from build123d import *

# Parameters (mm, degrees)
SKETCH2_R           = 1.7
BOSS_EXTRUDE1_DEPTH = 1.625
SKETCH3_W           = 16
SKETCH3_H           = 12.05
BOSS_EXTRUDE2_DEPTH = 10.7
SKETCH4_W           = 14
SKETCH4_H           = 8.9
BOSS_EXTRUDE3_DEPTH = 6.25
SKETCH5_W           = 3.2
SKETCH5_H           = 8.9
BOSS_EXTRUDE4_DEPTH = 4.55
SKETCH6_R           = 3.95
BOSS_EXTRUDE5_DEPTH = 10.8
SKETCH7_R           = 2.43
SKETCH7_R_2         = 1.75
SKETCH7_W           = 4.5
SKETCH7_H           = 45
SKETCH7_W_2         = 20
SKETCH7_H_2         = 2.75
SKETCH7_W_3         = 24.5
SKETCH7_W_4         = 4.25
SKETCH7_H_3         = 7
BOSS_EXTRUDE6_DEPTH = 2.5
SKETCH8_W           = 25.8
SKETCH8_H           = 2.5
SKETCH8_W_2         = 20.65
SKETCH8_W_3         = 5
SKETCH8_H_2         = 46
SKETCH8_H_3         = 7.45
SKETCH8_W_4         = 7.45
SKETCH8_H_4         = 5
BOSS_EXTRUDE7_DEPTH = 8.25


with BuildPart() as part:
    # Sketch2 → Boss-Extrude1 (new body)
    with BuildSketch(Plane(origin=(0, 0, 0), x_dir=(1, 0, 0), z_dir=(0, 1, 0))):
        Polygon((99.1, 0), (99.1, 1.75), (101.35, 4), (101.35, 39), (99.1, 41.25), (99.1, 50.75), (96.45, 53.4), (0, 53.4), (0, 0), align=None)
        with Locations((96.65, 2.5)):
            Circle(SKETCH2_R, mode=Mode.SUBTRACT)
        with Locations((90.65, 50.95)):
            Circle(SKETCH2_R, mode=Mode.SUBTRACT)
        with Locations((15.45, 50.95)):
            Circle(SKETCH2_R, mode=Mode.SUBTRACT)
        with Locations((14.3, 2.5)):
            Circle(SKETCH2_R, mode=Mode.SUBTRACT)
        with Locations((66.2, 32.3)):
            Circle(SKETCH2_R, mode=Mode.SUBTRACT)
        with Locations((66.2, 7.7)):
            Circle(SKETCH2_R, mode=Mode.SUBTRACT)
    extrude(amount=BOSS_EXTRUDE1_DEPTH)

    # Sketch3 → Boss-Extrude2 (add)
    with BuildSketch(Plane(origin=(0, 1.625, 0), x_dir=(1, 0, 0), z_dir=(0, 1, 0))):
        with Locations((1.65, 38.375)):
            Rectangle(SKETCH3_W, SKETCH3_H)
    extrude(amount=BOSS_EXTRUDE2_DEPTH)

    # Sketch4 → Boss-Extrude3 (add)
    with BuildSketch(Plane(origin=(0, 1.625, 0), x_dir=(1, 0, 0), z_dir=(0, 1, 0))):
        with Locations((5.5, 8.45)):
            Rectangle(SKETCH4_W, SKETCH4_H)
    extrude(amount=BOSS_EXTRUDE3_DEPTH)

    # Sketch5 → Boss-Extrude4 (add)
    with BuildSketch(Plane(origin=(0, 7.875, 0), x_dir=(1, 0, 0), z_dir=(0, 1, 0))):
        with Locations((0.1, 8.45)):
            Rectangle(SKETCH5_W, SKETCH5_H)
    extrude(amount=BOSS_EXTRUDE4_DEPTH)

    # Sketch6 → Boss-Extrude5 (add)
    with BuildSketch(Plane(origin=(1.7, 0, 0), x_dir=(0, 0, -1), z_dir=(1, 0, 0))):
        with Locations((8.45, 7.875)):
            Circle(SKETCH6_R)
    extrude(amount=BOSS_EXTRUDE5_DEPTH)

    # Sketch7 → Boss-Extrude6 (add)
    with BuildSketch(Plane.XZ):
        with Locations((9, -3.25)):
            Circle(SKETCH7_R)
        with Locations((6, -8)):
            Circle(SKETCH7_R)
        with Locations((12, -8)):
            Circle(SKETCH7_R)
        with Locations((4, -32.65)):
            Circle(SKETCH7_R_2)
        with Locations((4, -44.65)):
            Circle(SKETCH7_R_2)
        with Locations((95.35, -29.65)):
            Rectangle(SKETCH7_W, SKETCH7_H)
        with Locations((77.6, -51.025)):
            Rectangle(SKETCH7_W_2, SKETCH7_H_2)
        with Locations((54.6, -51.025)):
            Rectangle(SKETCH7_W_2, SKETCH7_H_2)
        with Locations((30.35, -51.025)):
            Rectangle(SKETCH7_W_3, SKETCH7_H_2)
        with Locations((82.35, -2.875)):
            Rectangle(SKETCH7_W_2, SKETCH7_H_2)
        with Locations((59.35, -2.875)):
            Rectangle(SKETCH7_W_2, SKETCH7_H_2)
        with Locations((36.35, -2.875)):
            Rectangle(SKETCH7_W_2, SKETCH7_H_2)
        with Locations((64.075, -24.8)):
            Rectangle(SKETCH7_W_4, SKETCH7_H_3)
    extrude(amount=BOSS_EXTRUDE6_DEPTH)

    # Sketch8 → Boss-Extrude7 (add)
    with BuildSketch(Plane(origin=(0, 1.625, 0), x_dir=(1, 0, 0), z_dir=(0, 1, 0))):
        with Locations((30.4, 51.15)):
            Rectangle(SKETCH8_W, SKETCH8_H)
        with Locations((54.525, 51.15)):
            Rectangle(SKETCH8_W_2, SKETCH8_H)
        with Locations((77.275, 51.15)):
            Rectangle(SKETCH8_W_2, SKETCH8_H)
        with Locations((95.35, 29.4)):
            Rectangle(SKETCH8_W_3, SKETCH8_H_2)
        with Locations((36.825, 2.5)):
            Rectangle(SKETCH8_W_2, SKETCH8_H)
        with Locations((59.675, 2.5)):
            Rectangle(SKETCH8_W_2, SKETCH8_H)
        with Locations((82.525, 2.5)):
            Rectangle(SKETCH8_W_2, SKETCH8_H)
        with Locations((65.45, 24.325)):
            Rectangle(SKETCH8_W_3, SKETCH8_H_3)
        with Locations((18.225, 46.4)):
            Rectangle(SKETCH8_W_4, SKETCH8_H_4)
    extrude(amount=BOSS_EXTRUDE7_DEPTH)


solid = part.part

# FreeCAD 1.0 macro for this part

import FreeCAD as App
import Part
import Sketcher

doc = App.newDocument("Part")
body = doc.addObject("PartDesign::Body", "Body")

# Sketch on XZ plane
sketch1 = body.newObject("Sketcher::SketchObject", "Sketch")
sketch1.AttachmentSupport = (doc.getObject("XZ_Plane"), [""])
sketch1.MapMode = "FlatFace"
sketch1.addGeometry([
    Part.LineSegment(App.Vector(99.1, 0, 0), App.Vector(99.1, -1.75, 0)),  # 0
    Part.LineSegment(App.Vector(99.1, -1.75, 0), App.Vector(101.35, -4, 0)),  # 1
    Part.LineSegment(App.Vector(101.35, -4, 0), App.Vector(101.35, -39, 0)),  # 2
    Part.LineSegment(App.Vector(101.35, -39, 0), App.Vector(99.1, -41.25, 0)),  # 3
    Part.LineSegment(App.Vector(99.1, -41.25, 0), App.Vector(99.1, -50.75, 0)),  # 4
    Part.LineSegment(App.Vector(99.1, -50.75, 0), App.Vector(96.45, -53.4, 0)),  # 5
    Part.LineSegment(App.Vector(96.45, -53.4, 0), App.Vector(0, -53.4, 0)),  # 6
    Part.LineSegment(App.Vector(0, -53.4, 0), App.Vector(0, 0, 0)),  # 7
    Part.LineSegment(App.Vector(0, 0, 0), App.Vector(99.1, 0, 0)),  # 8
    Part.Circle(App.Vector(14.3, -2.5, 0), App.Vector(0, 0, 1), 1.7),  # 9
    Part.Circle(App.Vector(66.2, -7.7, 0), App.Vector(0, 0, 1), 1.7),  # 10
    Part.Circle(App.Vector(96.65, -2.5, 0), App.Vector(0, 0, 1), 1.7),  # 11
    Part.Circle(App.Vector(15.45, -50.95, 0), App.Vector(0, 0, 1), 1.7),  # 12
    Part.Circle(App.Vector(66.2, -32.3, 0), App.Vector(0, 0, 1), 1.7),  # 13
    Part.Circle(App.Vector(90.65, -50.95, 0), App.Vector(0, 0, 1), 1.7),  # 14
], False)
sketch1.addConstraint([
    Sketcher.Constraint("Coincident", 0, 2, 1, 1),
    Sketcher.Constraint("Coincident", 1, 2, 2, 1),
    Sketcher.Constraint("Coincident", 2, 2, 3, 1),
    Sketcher.Constraint("Coincident", 3, 2, 4, 1),
    Sketcher.Constraint("Coincident", 4, 2, 5, 1),
    Sketcher.Constraint("Coincident", 5, 2, 6, 1),
    Sketcher.Constraint("Coincident", 6, 2, 7, 1),
    Sketcher.Constraint("Coincident", 7, 2, 8, 1),
    Sketcher.Constraint("Coincident", 8, 2, 0, 1),
    Sketcher.Constraint("Vertical", 0),
    Sketcher.Constraint("Vertical", 2),
    Sketcher.Constraint("Vertical", 4),
    Sketcher.Constraint("Horizontal", 6),
    Sketcher.Constraint("Vertical", 7),
    Sketcher.Constraint("Horizontal", 8),
    Sketcher.Constraint("Coincident", 7, 2, -1, 1),
    Sketcher.Constraint("Equal", 9, 10),
    Sketcher.Constraint("Equal", 10, 11),
    Sketcher.Constraint("Equal", 11, 12),
    Sketcher.Constraint("Equal", 12, 13),
    Sketcher.Constraint("Equal", 13, 14),
    Sketcher.Constraint("Perpendicular", 1, 3),
    Sketcher.Constraint("Parallel", 3, 5),
    Sketcher.Constraint("Horizontal", 9, 3, 11, 3),
    Sketcher.Constraint("Horizontal", 12, 3, 14, 3),
    Sketcher.Constraint("Vertical", 10, 3, 13, 3),
    Sketcher.Constraint("Vertical", 0, 2, 3, 2),
    Sketcher.Constraint("Equal", 1, 3),
    Sketcher.Constraint("Diameter", 9, 3.4),
    Sketcher.Constraint("DistanceY", 2, 2, 2, 1, 35.0),
    Sketcher.Constraint("DistanceX", 8, 1, 8, 2, 99.1),
    Sketcher.Constraint("DistanceY", 4, 2, 4, 1, 9.5),
    Sketcher.Constraint("DistanceY", 7, 1, 7, 2, 53.4),
    Sketcher.Constraint("DistanceY", 1, 2, -1, 1, 4.0),
    Sketcher.Constraint("DistanceX", 14, 3, 11, 3, 6.0),
    Sketcher.Constraint("DistanceX", 6, 2, 6, 1, 96.45),
    Sketcher.Constraint("DistanceX", -1, 1, 9, 3, 14.3),
    Sketcher.Constraint("DistanceY", 9, 3, -1, 1, 2.5),
    Sketcher.Constraint("DistanceX", -1, 1, 10, 3, 66.2),
    Sketcher.Constraint("DistanceY", 10, 3, -1, 1, 7.7),
    Sketcher.Constraint("DistanceY", 13, 3, -1, 1, 32.3),
    Sketcher.Constraint("DistanceX", 12, 3, 11, 3, 81.2),
    Sketcher.Constraint("DistanceY", 14, 3, 0, 2, 49.2),
    Sketcher.Constraint("DistanceX", 11, 3, 1, 2, 4.7),
])
pad1 = body.newObject("PartDesign::Pad", "Pad")
pad1.Profile = sketch1
pad1.Length = 1.625
pad1.Reversed = True

# Sketch on XZ plane
sketch2 = body.newObject("Sketcher::SketchObject", "Sketch001")
sketch2.AttachmentSupport = (doc.getObject("XZ_Plane"), [""])
sketch2.MapMode = "FlatFace"
sketch2.AttachmentOffset = App.Placement(App.Vector(0, 0, -1.625), App.Rotation())
sketch2.addGeometry([
    Part.LineSegment(App.Vector(-6.35, -44.4, 0), App.Vector(-6.35, -32.35, 0)),
    Part.LineSegment(App.Vector(-6.35, -32.35, 0), App.Vector(9.65, -32.35, 0)),
    Part.LineSegment(App.Vector(9.65, -32.35, 0), App.Vector(9.65, -44.4, 0)),
    Part.LineSegment(App.Vector(9.65, -44.4, 0), App.Vector(-6.35, -44.4, 0)),
], False)
sketch2.addConstraint([
    Sketcher.Constraint("Coincident", 0, 2, 1, 1),
    Sketcher.Constraint("Coincident", 1, 2, 2, 1),
    Sketcher.Constraint("Coincident", 2, 2, 3, 1),
    Sketcher.Constraint("Coincident", 3, 2, 0, 1),
    Sketcher.Constraint("Vertical", 0),
    Sketcher.Constraint("Horizontal", 1),
    Sketcher.Constraint("Vertical", 2),
    Sketcher.Constraint("Horizontal", 3),
    Sketcher.Constraint("DistanceX", 1, 1, 1, 2, 16.0),
    Sketcher.Constraint("DistanceY", 0, 1, 0, 2, 12.05),
    Sketcher.Constraint("DistanceY", 2, 2, -1, 1, 44.4),
    Sketcher.Constraint("DistanceX", 0, 2, -1, 1, 6.35),
])
pad2 = body.newObject("PartDesign::Pad", "Pad001")
pad2.Profile = sketch2
pad2.Length = 10.7
pad2.Reversed = True

# Sketch on XZ plane
sketch3 = body.newObject("Sketcher::SketchObject", "Sketch002")
sketch3.AttachmentSupport = (doc.getObject("XZ_Plane"), [""])
sketch3.MapMode = "FlatFace"
sketch3.AttachmentOffset = App.Placement(App.Vector(0, 0, -1.625), App.Rotation())
sketch3.addGeometry([
    Part.LineSegment(App.Vector(-1.5, -12.9, 0), App.Vector(-1.5, -4, 0)),
    Part.LineSegment(App.Vector(-1.5, -4, 0), App.Vector(12.5, -4, 0)),
    Part.LineSegment(App.Vector(12.5, -4, 0), App.Vector(12.5, -12.9, 0)),
    Part.LineSegment(App.Vector(12.5, -12.9, 0), App.Vector(-1.5, -12.9, 0)),
], False)
sketch3.addConstraint([
    Sketcher.Constraint("Coincident", 0, 2, 1, 1),
    Sketcher.Constraint("Coincident", 1, 2, 2, 1),
    Sketcher.Constraint("Coincident", 2, 2, 3, 1),
    Sketcher.Constraint("Coincident", 3, 2, 0, 1),
    Sketcher.Constraint("Vertical", 0),
    Sketcher.Constraint("Horizontal", 1),
    Sketcher.Constraint("Vertical", 2),
    Sketcher.Constraint("Horizontal", 3),
    Sketcher.Constraint("DistanceX", 1, 1, 1, 2, 14.0),
    Sketcher.Constraint("DistanceY", 0, 1, 0, 2, 8.9),
    Sketcher.Constraint("DistanceY", 0, 2, -1, 1, 4.0),
    Sketcher.Constraint("DistanceX", 0, 2, -1, 1, 1.5),
])
pad3 = body.newObject("PartDesign::Pad", "Pad002")
pad3.Profile = sketch3
pad3.Length = 6.25
pad3.Reversed = True

# Sketch on XZ plane
sketch4 = body.newObject("Sketcher::SketchObject", "Sketch003")
sketch4.AttachmentSupport = (doc.getObject("XZ_Plane"), [""])
sketch4.MapMode = "FlatFace"
sketch4.AttachmentOffset = App.Placement(App.Vector(0, 0, -7.875), App.Rotation())
sketch4.addGeometry([
    Part.LineSegment(App.Vector(-1.5, -12.9, 0), App.Vector(-1.5, -4, 0)),
    Part.LineSegment(App.Vector(-1.5, -4, 0), App.Vector(1.7, -4, 0)),
    Part.LineSegment(App.Vector(1.7, -4, 0), App.Vector(1.7, -12.9, 0)),
    Part.LineSegment(App.Vector(1.7, -12.9, 0), App.Vector(-1.5, -12.9, 0)),
], False)
sketch4.addConstraint([
    Sketcher.Constraint("Coincident", 0, 2, 1, 1),
    Sketcher.Constraint("Coincident", 1, 2, 2, 1),
    Sketcher.Constraint("Coincident", 2, 2, 3, 1),
    Sketcher.Constraint("Coincident", 3, 2, 0, 1),
    Sketcher.Constraint("Vertical", 0),
    Sketcher.Constraint("Horizontal", 1),
    Sketcher.Constraint("Vertical", 2),
    Sketcher.Constraint("Horizontal", 3),
    Sketcher.Constraint("DistanceX", 1, 1, 1, 2, 3.2),
    Sketcher.Constraint("DistanceY", 0, 1, 0, 2, 8.9),
    Sketcher.Constraint("DistanceY", 0, 2, -1, 1, 4.0),
    Sketcher.Constraint("DistanceX", 0, 2, -1, 1, 1.5),
])
pad4 = body.newObject("PartDesign::Pad", "Pad003")
pad4.Profile = sketch4
pad4.Length = 4.55
pad4.Reversed = True

# Sketch on YZ plane
sketch5 = body.newObject("Sketcher::SketchObject", "Sketch004")
sketch5.AttachmentSupport = (doc.getObject("YZ_Plane"), [""])
sketch5.MapMode = "FlatFace"
sketch5.AttachmentOffset = App.Placement(App.Vector(0, 0, 1.7), App.Rotation())
sketch5.addGeometry(Part.Circle(App.Vector(7.875, -8.45, 0), App.Vector(0, 0, 1), 3.95), False)
sketch5.addConstraint([
    Sketcher.Constraint("Diameter", 0, 7.9),
    Sketcher.Constraint("DistanceY", 0, 3, -1, 1, 8.45),
    Sketcher.Constraint("DistanceX", -1, 1, 0, 3, 7.875),
])
pad5 = body.newObject("PartDesign::Pad", "Pad004")
pad5.Profile = sketch5
pad5.Length = 10.8

# Sketch on XZ plane
sketch6 = body.newObject("Sketcher::SketchObject", "Sketch005")
sketch6.AttachmentSupport = (doc.getObject("XZ_Plane"), [""])
sketch6.MapMode = "FlatFace"
sketch6.addGeometry([
    Part.Circle(App.Vector(9, -3.25, 0), App.Vector(0, 0, 1), 2.43),  # 0
    Part.Circle(App.Vector(6, -8, 0), App.Vector(0, 0, 1), 2.43),  # 1
    Part.Circle(App.Vector(12, -8, 0), App.Vector(0, 0, 1), 2.43),  # 2
    Part.Circle(App.Vector(4, -32.65, 0), App.Vector(0, 0, 1), 1.75),  # 3
    Part.Circle(App.Vector(4, -44.65, 0), App.Vector(0, 0, 1), 1.75),  # 4
    Part.LineSegment(App.Vector(93.1, -7.15, 0), App.Vector(93.1, -52.15, 0)),  # 5
    Part.LineSegment(App.Vector(93.1, -52.15, 0), App.Vector(97.6, -52.15, 0)),  # 6
    Part.LineSegment(App.Vector(97.6, -52.15, 0), App.Vector(97.6, -7.15, 0)),  # 7
    Part.LineSegment(App.Vector(97.6, -7.15, 0), App.Vector(93.1, -7.15, 0)),  # 8
    Part.LineSegment(App.Vector(67.6, -49.65, 0), App.Vector(67.6, -52.4, 0)),  # 9
    Part.LineSegment(App.Vector(67.6, -52.4, 0), App.Vector(87.6, -52.4, 0)),  # 10
    Part.LineSegment(App.Vector(87.6, -52.4, 0), App.Vector(87.6, -49.65, 0)),  # 11
    Part.LineSegment(App.Vector(87.6, -49.65, 0), App.Vector(67.6, -49.65, 0)),  # 12
    Part.LineSegment(App.Vector(44.6, -49.65, 0), App.Vector(44.6, -52.4, 0)),  # 13
    Part.LineSegment(App.Vector(44.6, -52.4, 0), App.Vector(64.6, -52.4, 0)),  # 14
    Part.LineSegment(App.Vector(64.6, -52.4, 0), App.Vector(64.6, -49.65, 0)),  # 15
    Part.LineSegment(App.Vector(64.6, -49.65, 0), App.Vector(44.6, -49.65, 0)),  # 16
    Part.LineSegment(App.Vector(18.1, -49.65, 0), App.Vector(18.1, -52.4, 0)),  # 17
    Part.LineSegment(App.Vector(18.1, -52.4, 0), App.Vector(42.6, -52.4, 0)),  # 18
    Part.LineSegment(App.Vector(42.6, -52.4, 0), App.Vector(42.6, -49.65, 0)),  # 19
    Part.LineSegment(App.Vector(42.6, -49.65, 0), App.Vector(18.1, -49.65, 0)),  # 20
    Part.LineSegment(App.Vector(72.35, -1.5, 0), App.Vector(72.35, -4.25, 0)),  # 21
    Part.LineSegment(App.Vector(72.35, -4.25, 0), App.Vector(92.35, -4.25, 0)),  # 22
    Part.LineSegment(App.Vector(92.35, -4.25, 0), App.Vector(92.35, -1.5, 0)),  # 23
    Part.LineSegment(App.Vector(92.35, -1.5, 0), App.Vector(72.35, -1.5, 0)),  # 24
    Part.LineSegment(App.Vector(49.35, -1.5, 0), App.Vector(49.35, -4.25, 0)),  # 25
    Part.LineSegment(App.Vector(49.35, -4.25, 0), App.Vector(69.35, -4.25, 0)),  # 26
    Part.LineSegment(App.Vector(69.35, -4.25, 0), App.Vector(69.35, -1.5, 0)),  # 27
    Part.LineSegment(App.Vector(69.35, -1.5, 0), App.Vector(49.35, -1.5, 0)),  # 28
    Part.LineSegment(App.Vector(26.35, -1.5, 0), App.Vector(26.35, -4.25, 0)),  # 29
    Part.LineSegment(App.Vector(26.35, -4.25, 0), App.Vector(46.35, -4.25, 0)),  # 30
    Part.LineSegment(App.Vector(46.35, -4.25, 0), App.Vector(46.35, -1.5, 0)),  # 31
    Part.LineSegment(App.Vector(46.35, -1.5, 0), App.Vector(26.35, -1.5, 0)),  # 32
    Part.LineSegment(App.Vector(61.95, -21.3, 0), App.Vector(61.95, -28.3, 0)),  # 33
    Part.LineSegment(App.Vector(61.95, -28.3, 0), App.Vector(66.2, -28.3, 0)),  # 34
    Part.LineSegment(App.Vector(66.2, -28.3, 0), App.Vector(66.2, -21.3, 0)),  # 35
    Part.LineSegment(App.Vector(66.2, -21.3, 0), App.Vector(61.95, -21.3, 0)),  # 36
], False)
sketch6.addConstraint([
    Sketcher.Constraint("Coincident", 5, 2, 6, 1),
    Sketcher.Constraint("Coincident", 6, 2, 7, 1),
    Sketcher.Constraint("Coincident", 7, 2, 8, 1),
    Sketcher.Constraint("Coincident", 8, 2, 5, 1),
    Sketcher.Constraint("Coincident", 9, 2, 10, 1),
    Sketcher.Constraint("Coincident", 10, 2, 11, 1),
    Sketcher.Constraint("Coincident", 11, 2, 12, 1),
    Sketcher.Constraint("Coincident", 12, 2, 9, 1),
    Sketcher.Constraint("Coincident", 13, 2, 14, 1),
    Sketcher.Constraint("Coincident", 14, 2, 15, 1),
    Sketcher.Constraint("Coincident", 15, 2, 16, 1),
    Sketcher.Constraint("Coincident", 16, 2, 13, 1),
    Sketcher.Constraint("Coincident", 17, 2, 18, 1),
    Sketcher.Constraint("Coincident", 18, 2, 19, 1),
    Sketcher.Constraint("Coincident", 19, 2, 20, 1),
    Sketcher.Constraint("Coincident", 20, 2, 17, 1),
    Sketcher.Constraint("Coincident", 21, 2, 22, 1),
    Sketcher.Constraint("Coincident", 22, 2, 23, 1),
    Sketcher.Constraint("Coincident", 23, 2, 24, 1),
    Sketcher.Constraint("Coincident", 24, 2, 21, 1),
    Sketcher.Constraint("Coincident", 25, 2, 26, 1),
    Sketcher.Constraint("Coincident", 26, 2, 27, 1),
    Sketcher.Constraint("Coincident", 27, 2, 28, 1),
    Sketcher.Constraint("Coincident", 28, 2, 25, 1),
    Sketcher.Constraint("Coincident", 29, 2, 30, 1),
    Sketcher.Constraint("Coincident", 30, 2, 31, 1),
    Sketcher.Constraint("Coincident", 31, 2, 32, 1),
    Sketcher.Constraint("Coincident", 32, 2, 29, 1),
    Sketcher.Constraint("Coincident", 33, 2, 34, 1),
    Sketcher.Constraint("Coincident", 34, 2, 35, 1),
    Sketcher.Constraint("Coincident", 35, 2, 36, 1),
    Sketcher.Constraint("Coincident", 36, 2, 33, 1),
    Sketcher.Constraint("Vertical", 5),
    Sketcher.Constraint("Horizontal", 6),
    Sketcher.Constraint("Vertical", 7),
    Sketcher.Constraint("Horizontal", 8),
    Sketcher.Constraint("Vertical", 9),
    Sketcher.Constraint("Horizontal", 10),
    Sketcher.Constraint("Vertical", 11),
    Sketcher.Constraint("Horizontal", 12),
    Sketcher.Constraint("Vertical", 13),
    Sketcher.Constraint("Horizontal", 14),
    Sketcher.Constraint("Vertical", 15),
    Sketcher.Constraint("Horizontal", 16),
    Sketcher.Constraint("Vertical", 17),
    Sketcher.Constraint("Horizontal", 18),
    Sketcher.Constraint("Vertical", 19),
    Sketcher.Constraint("Horizontal", 20),
    Sketcher.Constraint("Vertical", 21),
    Sketcher.Constraint("Horizontal", 22),
    Sketcher.Constraint("Vertical", 23),
    Sketcher.Constraint("Horizontal", 24),
    Sketcher.Constraint("Vertical", 25),
    Sketcher.Constraint("Horizontal", 26),
    Sketcher.Constraint("Vertical", 27),
    Sketcher.Constraint("Horizontal", 28),
    Sketcher.Constraint("Vertical", 29),
    Sketcher.Constraint("Horizontal", 30),
    Sketcher.Constraint("Vertical", 31),
    Sketcher.Constraint("Horizontal", 32),
    Sketcher.Constraint("Vertical", 33),
    Sketcher.Constraint("Horizontal", 34),
    Sketcher.Constraint("Vertical", 35),
    Sketcher.Constraint("Horizontal", 36),
    Sketcher.Constraint("Equal", 0, 1),
    Sketcher.Constraint("Equal", 1, 2),
    Sketcher.Constraint("Equal", 3, 4),
    Sketcher.Constraint("Horizontal", 1, 3, 2, 3),
    Sketcher.Constraint("Horizontal", 10, 2, 13, 2),
    Sketcher.Constraint("Horizontal", 12, 2, 15, 2),
    Sketcher.Constraint("Horizontal", 14, 2, 17, 2),
    Sketcher.Constraint("Horizontal", 16, 2, 19, 2),
    Sketcher.Constraint("Horizontal", 22, 2, 25, 2),
    Sketcher.Constraint("Horizontal", 24, 2, 27, 2),
    Sketcher.Constraint("Horizontal", 26, 2, 29, 2),
    Sketcher.Constraint("Horizontal", 28, 2, 31, 2),
    Sketcher.Constraint("Vertical", 3, 3, 4, 3),
    Sketcher.Constraint("Equal", 12, 14),
    Sketcher.Constraint("Equal", 16, 22),
    Sketcher.Constraint("Equal", 24, 26),
    Sketcher.Constraint("Equal", 28, 30),
    Sketcher.Constraint("Equal", 19, 21),
    Sketcher.Constraint("Diameter", 3, 3.5),
    Sketcher.Constraint("Diameter", 0, 4.86),
    Sketcher.Constraint("DistanceX", 10, 1, 10, 2, 20.0),
    Sketcher.Constraint("DistanceY", 5, 2, 5, 1, 45.0),
    Sketcher.Constraint("DistanceY", 33, 2, 33, 1, 7.0),
    Sketcher.Constraint("DistanceX", 6, 1, 6, 2, 4.5),
    Sketcher.Constraint("DistanceX", 18, 1, 18, 2, 24.5),
    Sketcher.Constraint("DistanceX", -1, 1, 0, 3, 9.0),
    Sketcher.Constraint("DistanceX", -1, 1, 1, 3, 6.0),
    Sketcher.Constraint("DistanceY", 1, 3, -1, 1, 8.0),
    Sketcher.Constraint("DistanceX", -1, 1, 2, 3, 12.0),
    Sketcher.Constraint("DistanceX", -1, 1, 3, 3, 4.0),
    Sketcher.Constraint("DistanceY", 4, 3, 3, 3, 12.0),
    Sketcher.Constraint("DistanceX", 9, 2, 6, 2, 30.0),
    Sketcher.Constraint("DistanceX", 13, 2, 9, 2, 23.0),
    Sketcher.Constraint("DistanceX", 18, 2, 13, 2, 2.0),
    Sketcher.Constraint("DistanceY", 20, 2, 4, 3, 5.0),
    Sketcher.Constraint("DistanceX", 25, 2, 21, 2, 23.0),
    Sketcher.Constraint("DistanceY", 25, 2, 0, 3, 1.0),
    Sketcher.Constraint("DistanceX", 29, 2, 25, 2, 23.0),
    Sketcher.Constraint("DistanceX", 34, 1, 34, 2, 4.25),
    Sketcher.Constraint("DistanceY", 9, 2, 9, 1, 2.75),
    Sketcher.Constraint("DistanceX", -1, 1, 5, 2, 93.1),
    Sketcher.Constraint("DistanceY", 9, 2, -1, 1, 52.4),
    Sketcher.Constraint("DistanceY", 23, 2, -1, 1, 1.5),
    Sketcher.Constraint("DistanceY", 33, 2, -1, 1, 28.3),
    Sketcher.Constraint("DistanceX", -1, 1, 34, 2, 66.2),
    Sketcher.Constraint("DistanceY", 5, 2, 4, 3, 7.5),
    Sketcher.Constraint("DistanceX", 33, 2, 26, 2, 7.4),
])
pad6 = body.newObject("PartDesign::Pad", "Pad005")
pad6.Profile = sketch6
pad6.Length = 2.5

# Sketch on XZ plane
sketch7 = body.newObject("Sketcher::SketchObject", "Sketch006")
sketch7.AttachmentSupport = (doc.getObject("XZ_Plane"), [""])
sketch7.MapMode = "FlatFace"
sketch7.AttachmentOffset = App.Placement(App.Vector(0, 0, -1.625), App.Rotation())
sketch7.addGeometry([
    Part.LineSegment(App.Vector(17.5, -52.4, 0), App.Vector(17.5, -49.9, 0)),  # 0
    Part.LineSegment(App.Vector(17.5, -49.9, 0), App.Vector(43.3, -49.9, 0)),  # 1
    Part.LineSegment(App.Vector(43.3, -49.9, 0), App.Vector(43.3, -52.4, 0)),  # 2
    Part.LineSegment(App.Vector(43.3, -52.4, 0), App.Vector(17.5, -52.4, 0)),  # 3
    Part.LineSegment(App.Vector(44.2, -52.4, 0), App.Vector(44.2, -49.9, 0)),  # 4
    Part.LineSegment(App.Vector(44.2, -49.9, 0), App.Vector(64.85, -49.9, 0)),  # 5
    Part.LineSegment(App.Vector(64.85, -49.9, 0), App.Vector(64.85, -52.4, 0)),  # 6
    Part.LineSegment(App.Vector(64.85, -52.4, 0), App.Vector(44.2, -52.4, 0)),  # 7
    Part.LineSegment(App.Vector(66.95, -52.4, 0), App.Vector(66.95, -49.9, 0)),  # 8
    Part.LineSegment(App.Vector(66.95, -49.9, 0), App.Vector(87.6, -49.9, 0)),  # 9
    Part.LineSegment(App.Vector(87.6, -49.9, 0), App.Vector(87.6, -52.4, 0)),  # 10
    Part.LineSegment(App.Vector(87.6, -52.4, 0), App.Vector(66.95, -52.4, 0)),  # 11
    Part.LineSegment(App.Vector(92.85, -52.4, 0), App.Vector(92.85, -6.4, 0)),  # 12
    Part.LineSegment(App.Vector(92.85, -6.4, 0), App.Vector(97.85, -6.4, 0)),  # 13
    Part.LineSegment(App.Vector(97.85, -6.4, 0), App.Vector(97.85, -52.4, 0)),  # 14
    Part.LineSegment(App.Vector(97.85, -52.4, 0), App.Vector(92.85, -52.4, 0)),  # 15
    Part.LineSegment(App.Vector(26.5, -3.75, 0), App.Vector(26.5, -1.25, 0)),  # 16
    Part.LineSegment(App.Vector(26.5, -1.25, 0), App.Vector(47.15, -1.25, 0)),  # 17
    Part.LineSegment(App.Vector(47.15, -1.25, 0), App.Vector(47.15, -3.75, 0)),  # 18
    Part.LineSegment(App.Vector(47.15, -3.75, 0), App.Vector(26.5, -3.75, 0)),  # 19
    Part.LineSegment(App.Vector(49.35, -3.75, 0), App.Vector(49.35, -1.25, 0)),  # 20
    Part.LineSegment(App.Vector(49.35, -1.25, 0), App.Vector(70, -1.25, 0)),  # 21
    Part.LineSegment(App.Vector(70, -1.25, 0), App.Vector(70, -3.75, 0)),  # 22
    Part.LineSegment(App.Vector(70, -3.75, 0), App.Vector(49.35, -3.75, 0)),  # 23
    Part.LineSegment(App.Vector(72.2, -3.75, 0), App.Vector(72.2, -1.25, 0)),  # 24
    Part.LineSegment(App.Vector(72.2, -1.25, 0), App.Vector(92.85, -1.25, 0)),  # 25
    Part.LineSegment(App.Vector(92.85, -1.25, 0), App.Vector(92.85, -3.75, 0)),  # 26
    Part.LineSegment(App.Vector(92.85, -3.75, 0), App.Vector(72.2, -3.75, 0)),  # 27
    Part.LineSegment(App.Vector(62.95, -28.05, 0), App.Vector(62.95, -20.6, 0)),  # 28
    Part.LineSegment(App.Vector(62.95, -20.6, 0), App.Vector(67.95, -20.6, 0)),  # 29
    Part.LineSegment(App.Vector(67.95, -20.6, 0), App.Vector(67.95, -28.05, 0)),  # 30
    Part.LineSegment(App.Vector(67.95, -28.05, 0), App.Vector(62.95, -28.05, 0)),  # 31
    Part.LineSegment(App.Vector(14.5, -48.9, 0), App.Vector(14.5, -43.9, 0)),  # 32
    Part.LineSegment(App.Vector(14.5, -43.9, 0), App.Vector(21.95, -43.9, 0)),  # 33
    Part.LineSegment(App.Vector(21.95, -43.9, 0), App.Vector(21.95, -48.9, 0)),  # 34
    Part.LineSegment(App.Vector(21.95, -48.9, 0), App.Vector(14.5, -48.9, 0)),  # 35
], False)
sketch7.addConstraint([
    Sketcher.Constraint("Coincident", 0, 2, 1, 1),
    Sketcher.Constraint("Coincident", 1, 2, 2, 1),
    Sketcher.Constraint("Coincident", 2, 2, 3, 1),
    Sketcher.Constraint("Coincident", 3, 2, 0, 1),
    Sketcher.Constraint("Coincident", 4, 2, 5, 1),
    Sketcher.Constraint("Coincident", 5, 2, 6, 1),
    Sketcher.Constraint("Coincident", 6, 2, 7, 1),
    Sketcher.Constraint("Coincident", 7, 2, 4, 1),
    Sketcher.Constraint("Coincident", 8, 2, 9, 1),
    Sketcher.Constraint("Coincident", 9, 2, 10, 1),
    Sketcher.Constraint("Coincident", 10, 2, 11, 1),
    Sketcher.Constraint("Coincident", 11, 2, 8, 1),
    Sketcher.Constraint("Coincident", 12, 2, 13, 1),
    Sketcher.Constraint("Coincident", 13, 2, 14, 1),
    Sketcher.Constraint("Coincident", 14, 2, 15, 1),
    Sketcher.Constraint("Coincident", 15, 2, 12, 1),
    Sketcher.Constraint("Coincident", 16, 2, 17, 1),
    Sketcher.Constraint("Coincident", 17, 2, 18, 1),
    Sketcher.Constraint("Coincident", 18, 2, 19, 1),
    Sketcher.Constraint("Coincident", 19, 2, 16, 1),
    Sketcher.Constraint("Coincident", 20, 2, 21, 1),
    Sketcher.Constraint("Coincident", 21, 2, 22, 1),
    Sketcher.Constraint("Coincident", 22, 2, 23, 1),
    Sketcher.Constraint("Coincident", 23, 2, 20, 1),
    Sketcher.Constraint("Coincident", 24, 2, 25, 1),
    Sketcher.Constraint("Coincident", 25, 2, 26, 1),
    Sketcher.Constraint("Coincident", 26, 2, 27, 1),
    Sketcher.Constraint("Coincident", 27, 2, 24, 1),
    Sketcher.Constraint("Coincident", 28, 2, 29, 1),
    Sketcher.Constraint("Coincident", 29, 2, 30, 1),
    Sketcher.Constraint("Coincident", 30, 2, 31, 1),
    Sketcher.Constraint("Coincident", 31, 2, 28, 1),
    Sketcher.Constraint("Coincident", 32, 2, 33, 1),
    Sketcher.Constraint("Coincident", 33, 2, 34, 1),
    Sketcher.Constraint("Coincident", 34, 2, 35, 1),
    Sketcher.Constraint("Coincident", 35, 2, 32, 1),
    Sketcher.Constraint("Vertical", 0),
    Sketcher.Constraint("Horizontal", 1),
    Sketcher.Constraint("Vertical", 2),
    Sketcher.Constraint("Horizontal", 3),
    Sketcher.Constraint("Vertical", 4),
    Sketcher.Constraint("Horizontal", 5),
    Sketcher.Constraint("Vertical", 6),
    Sketcher.Constraint("Horizontal", 7),
    Sketcher.Constraint("Vertical", 8),
    Sketcher.Constraint("Horizontal", 9),
    Sketcher.Constraint("Vertical", 10),
    Sketcher.Constraint("Horizontal", 11),
    Sketcher.Constraint("Vertical", 12),
    Sketcher.Constraint("Horizontal", 13),
    Sketcher.Constraint("Vertical", 14),
    Sketcher.Constraint("Horizontal", 15),
    Sketcher.Constraint("Vertical", 16),
    Sketcher.Constraint("Horizontal", 17),
    Sketcher.Constraint("Vertical", 18),
    Sketcher.Constraint("Horizontal", 19),
    Sketcher.Constraint("Vertical", 20),
    Sketcher.Constraint("Horizontal", 21),
    Sketcher.Constraint("Vertical", 22),
    Sketcher.Constraint("Horizontal", 23),
    Sketcher.Constraint("Vertical", 24),
    Sketcher.Constraint("Horizontal", 25),
    Sketcher.Constraint("Vertical", 26),
    Sketcher.Constraint("Horizontal", 27),
    Sketcher.Constraint("Vertical", 28),
    Sketcher.Constraint("Horizontal", 29),
    Sketcher.Constraint("Vertical", 30),
    Sketcher.Constraint("Horizontal", 31),
    Sketcher.Constraint("Vertical", 32),
    Sketcher.Constraint("Horizontal", 33),
    Sketcher.Constraint("Vertical", 34),
    Sketcher.Constraint("Horizontal", 35),
    Sketcher.Constraint("Horizontal", 1, 2, 4, 2),
    Sketcher.Constraint("Horizontal", 3, 2, 6, 2),
    Sketcher.Constraint("Horizontal", 5, 2, 8, 2),
    Sketcher.Constraint("Horizontal", 7, 2, 10, 2),
    Sketcher.Constraint("Horizontal", 11, 2, 14, 2),
    Sketcher.Constraint("Horizontal", 17, 2, 20, 2),
    Sketcher.Constraint("Horizontal", 19, 2, 22, 2),
    Sketcher.Constraint("Horizontal", 21, 2, 24, 2),
    Sketcher.Constraint("Horizontal", 23, 2, 26, 2),
    Sketcher.Constraint("Vertical", 15, 2, 25, 2),
    Sketcher.Constraint("Equal", 7, 9),
    Sketcher.Constraint("Equal", 11, 17),
    Sketcher.Constraint("Equal", 19, 21),
    Sketcher.Constraint("Equal", 23, 25),
    Sketcher.Constraint("Equal", 15, 29),
    Sketcher.Constraint("Equal", 10, 16),
    Sketcher.Constraint("Equal", 35, 28),
    Sketcher.Constraint("Equal", 31, 32),
    Sketcher.Constraint("DistanceX", 13, 1, 13, 2, 5.0),
    Sketcher.Constraint("DistanceY", 12, 1, 12, 2, 46.0),
    Sketcher.Constraint("DistanceX", 1, 1, 1, 2, 25.8),
    Sketcher.Constraint("DistanceY", 0, 1, 0, 2, 2.5),
    Sketcher.Constraint("DistanceX", -1, 1, 21, 2, 70.0),
    Sketcher.Constraint("DistanceX", 5, 2, 12, 2, 28.0),
    Sketcher.Constraint("DistanceX", 0, 2, 16, 2, 9.0),
    Sketcher.Constraint("DistanceX", 8, 2, 30, 2, 1.0),
    Sketcher.Constraint("DistanceX", 32, 2, 0, 2, 3.0),
    Sketcher.Constraint("DistanceY", 0, 2, 32, 2, 6.0),
    Sketcher.Constraint("DistanceX", 5, 1, 5, 2, 20.65),
    Sketcher.Constraint("DistanceX", 33, 1, 33, 2, 7.45),
    Sketcher.Constraint("DistanceX", -1, 1, 0, 2, 17.5),
    Sketcher.Constraint("DistanceY", 0, 2, -1, 1, 49.9),
    Sketcher.Constraint("DistanceX", -1, 1, 4, 2, 44.2),
    Sketcher.Constraint("DistanceX", -1, 1, 9, 2, 87.6),
    Sketcher.Constraint("DistanceY", 28, 2, -1, 1, 20.6),
    Sketcher.Constraint("DistanceY", 16, 2, -1, 1, 1.25),
])
pad7 = body.newObject("PartDesign::Pad", "Pad006")
pad7.Profile = sketch7
pad7.Length = 8.25
pad7.Reversed = True

doc.recompute()
